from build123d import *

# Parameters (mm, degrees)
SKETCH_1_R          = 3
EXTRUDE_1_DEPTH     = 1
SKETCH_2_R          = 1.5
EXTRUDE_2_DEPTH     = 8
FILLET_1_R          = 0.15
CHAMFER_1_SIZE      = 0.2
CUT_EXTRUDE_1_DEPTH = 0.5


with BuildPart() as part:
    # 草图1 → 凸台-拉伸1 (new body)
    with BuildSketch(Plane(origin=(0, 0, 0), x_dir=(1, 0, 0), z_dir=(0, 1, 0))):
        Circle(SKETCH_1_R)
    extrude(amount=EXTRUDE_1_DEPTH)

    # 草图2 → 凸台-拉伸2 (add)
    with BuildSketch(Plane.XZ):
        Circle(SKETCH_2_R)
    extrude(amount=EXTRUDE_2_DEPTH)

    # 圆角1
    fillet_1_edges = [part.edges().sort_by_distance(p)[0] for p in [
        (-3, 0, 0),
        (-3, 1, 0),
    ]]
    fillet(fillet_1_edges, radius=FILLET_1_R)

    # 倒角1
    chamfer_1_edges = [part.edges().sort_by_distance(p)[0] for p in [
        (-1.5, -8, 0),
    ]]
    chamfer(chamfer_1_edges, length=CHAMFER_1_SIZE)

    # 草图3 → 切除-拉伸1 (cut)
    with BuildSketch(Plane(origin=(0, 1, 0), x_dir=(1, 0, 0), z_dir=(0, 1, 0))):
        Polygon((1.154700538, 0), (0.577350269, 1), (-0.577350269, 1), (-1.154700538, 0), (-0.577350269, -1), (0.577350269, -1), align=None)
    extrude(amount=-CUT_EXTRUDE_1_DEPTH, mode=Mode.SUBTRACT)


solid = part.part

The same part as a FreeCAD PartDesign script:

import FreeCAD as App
import Part
import Sketcher
from FreeCAD import Vector
Q = App.Units.Quantity


def edges_at(feature, points):
    """Names of the edges that pass closest to the given points."""
    edges = feature.Shape.Edges
    near = lambda p: min(range(len(edges)), key=lambda i: edges[i].distToShape(Part.Vertex(*p))[0])
    return sorted({f"Edge{near(p) + 1}" for p in points})


def add_polygon(sketch, points):
    """Adds a closed chain of lines whose ends are joined by coincident constraints."""
    first, n = sketch.GeometryCount, len(points)
    for a, b in zip(points, points[1:] + points[:1]):
        sketch.addGeometry(Part.LineSegment(App.Vector(*a, 0), App.Vector(*b, 0)), False)
    for i in range(n):
        sketch.addConstraint(Sketcher.Constraint("Coincident", first + i, 2, first + (i + 1) % n, 1))

doc = App.newDocument("Part")
body = doc.addObject("PartDesign::Body", "Body")

# Sketch on XZ plane
sketch1 = body.newObject("Sketcher::SketchObject", "Sketch")
sketch1.AttachmentSupport = (doc.getObject("XZ_Plane"), [""])
sketch1.MapMode = "FlatFace"
sketch1.addGeometry(Part.Circle(Vector(0, 0, 0), Vector(0, 0, 1), 3), False)
sketch1.addConstraint([
    Sketcher.Constraint("Coincident", 0, 3, -1, 1),
    Sketcher.Constraint("Diameter", 0, Q("6 mm")),
])
pad1 = body.newObject("PartDesign::Pad", "Pad")
pad1.Profile = sketch1
pad1.Length = 1
pad1.Reversed = True

# Sketch on XZ plane
sketch2 = body.newObject("Sketcher::SketchObject", "Sketch001")
sketch2.AttachmentSupport = (doc.getObject("XZ_Plane"), [""])
sketch2.MapMode = "FlatFace"
sketch2.addGeometry(Part.Circle(Vector(0, 0, 0), Vector(0, 0, 1), 1.5), False)
sketch2.addConstraint([
    Sketcher.Constraint("Coincident", 0, 3, -1, 1),
    Sketcher.Constraint("Diameter", 0, Q("3 mm")),
])
pad2 = body.newObject("PartDesign::Pad", "Pad001")
pad2.Profile = sketch2
pad2.Length = 8
doc.recompute()

fillet = body.newObject("PartDesign::Fillet", "Fillet")
fillet.Base = (pad2, edges_at(pad2, [(-3, 0, 0), (-3, 1, 0)]))
fillet.Radius = 0.15
doc.recompute()

chamfer = body.newObject("PartDesign::Chamfer", "Chamfer")
chamfer.Base = (fillet, edges_at(fillet, [(-1.5, -8, 0)]))
chamfer.Size = 0.2

# Sketch on XZ plane
sketch3 = body.newObject("Sketcher::SketchObject", "Sketch002")
sketch3.AttachmentSupport = (doc.getObject("XZ_Plane"), [""])
sketch3.MapMode = "FlatFace"
sketch3.AttachmentOffset = App.Placement(Vector(0, 0, -1), App.Rotation())
add_polygon(sketch3, [(1.2, 0), (0.6, -1), (-0.6, -1), (-1.2, 0), (-0.6, 1), (0.6, 1)])  # lines 0-5
sketch3.addConstraint([
    Sketcher.Constraint("Horizontal", 1),
    Sketcher.Constraint("Horizontal", 4),
    Sketcher.Constraint("Symmetric", 0, 2, 3, 2, -1, 1),
    Sketcher.Constraint("Symmetric", 2, 2, 5, 2, -1, 1),
    Sketcher.Constraint("PointOnObject", 2, 2, -1),
    Sketcher.Constraint("Parallel", 2, 5),
    Sketcher.Constraint("Vertical", 1, 2, 3, 2),
    Sketcher.Constraint("Angle", 0, Q("-120 deg")),
    Sketcher.Constraint("DistanceY", 0, 2, -1, 1, Q("1 mm")),
    Sketcher.Constraint("DistanceX", 1, 2, 1, 1, Q("1.154701 mm")),
])
pocket1 = body.newObject("PartDesign::Pocket", "Pocket")
pocket1.Profile = sketch3
pocket1.Length = 0.5
pocket1.Reversed = True

doc.recompute()
